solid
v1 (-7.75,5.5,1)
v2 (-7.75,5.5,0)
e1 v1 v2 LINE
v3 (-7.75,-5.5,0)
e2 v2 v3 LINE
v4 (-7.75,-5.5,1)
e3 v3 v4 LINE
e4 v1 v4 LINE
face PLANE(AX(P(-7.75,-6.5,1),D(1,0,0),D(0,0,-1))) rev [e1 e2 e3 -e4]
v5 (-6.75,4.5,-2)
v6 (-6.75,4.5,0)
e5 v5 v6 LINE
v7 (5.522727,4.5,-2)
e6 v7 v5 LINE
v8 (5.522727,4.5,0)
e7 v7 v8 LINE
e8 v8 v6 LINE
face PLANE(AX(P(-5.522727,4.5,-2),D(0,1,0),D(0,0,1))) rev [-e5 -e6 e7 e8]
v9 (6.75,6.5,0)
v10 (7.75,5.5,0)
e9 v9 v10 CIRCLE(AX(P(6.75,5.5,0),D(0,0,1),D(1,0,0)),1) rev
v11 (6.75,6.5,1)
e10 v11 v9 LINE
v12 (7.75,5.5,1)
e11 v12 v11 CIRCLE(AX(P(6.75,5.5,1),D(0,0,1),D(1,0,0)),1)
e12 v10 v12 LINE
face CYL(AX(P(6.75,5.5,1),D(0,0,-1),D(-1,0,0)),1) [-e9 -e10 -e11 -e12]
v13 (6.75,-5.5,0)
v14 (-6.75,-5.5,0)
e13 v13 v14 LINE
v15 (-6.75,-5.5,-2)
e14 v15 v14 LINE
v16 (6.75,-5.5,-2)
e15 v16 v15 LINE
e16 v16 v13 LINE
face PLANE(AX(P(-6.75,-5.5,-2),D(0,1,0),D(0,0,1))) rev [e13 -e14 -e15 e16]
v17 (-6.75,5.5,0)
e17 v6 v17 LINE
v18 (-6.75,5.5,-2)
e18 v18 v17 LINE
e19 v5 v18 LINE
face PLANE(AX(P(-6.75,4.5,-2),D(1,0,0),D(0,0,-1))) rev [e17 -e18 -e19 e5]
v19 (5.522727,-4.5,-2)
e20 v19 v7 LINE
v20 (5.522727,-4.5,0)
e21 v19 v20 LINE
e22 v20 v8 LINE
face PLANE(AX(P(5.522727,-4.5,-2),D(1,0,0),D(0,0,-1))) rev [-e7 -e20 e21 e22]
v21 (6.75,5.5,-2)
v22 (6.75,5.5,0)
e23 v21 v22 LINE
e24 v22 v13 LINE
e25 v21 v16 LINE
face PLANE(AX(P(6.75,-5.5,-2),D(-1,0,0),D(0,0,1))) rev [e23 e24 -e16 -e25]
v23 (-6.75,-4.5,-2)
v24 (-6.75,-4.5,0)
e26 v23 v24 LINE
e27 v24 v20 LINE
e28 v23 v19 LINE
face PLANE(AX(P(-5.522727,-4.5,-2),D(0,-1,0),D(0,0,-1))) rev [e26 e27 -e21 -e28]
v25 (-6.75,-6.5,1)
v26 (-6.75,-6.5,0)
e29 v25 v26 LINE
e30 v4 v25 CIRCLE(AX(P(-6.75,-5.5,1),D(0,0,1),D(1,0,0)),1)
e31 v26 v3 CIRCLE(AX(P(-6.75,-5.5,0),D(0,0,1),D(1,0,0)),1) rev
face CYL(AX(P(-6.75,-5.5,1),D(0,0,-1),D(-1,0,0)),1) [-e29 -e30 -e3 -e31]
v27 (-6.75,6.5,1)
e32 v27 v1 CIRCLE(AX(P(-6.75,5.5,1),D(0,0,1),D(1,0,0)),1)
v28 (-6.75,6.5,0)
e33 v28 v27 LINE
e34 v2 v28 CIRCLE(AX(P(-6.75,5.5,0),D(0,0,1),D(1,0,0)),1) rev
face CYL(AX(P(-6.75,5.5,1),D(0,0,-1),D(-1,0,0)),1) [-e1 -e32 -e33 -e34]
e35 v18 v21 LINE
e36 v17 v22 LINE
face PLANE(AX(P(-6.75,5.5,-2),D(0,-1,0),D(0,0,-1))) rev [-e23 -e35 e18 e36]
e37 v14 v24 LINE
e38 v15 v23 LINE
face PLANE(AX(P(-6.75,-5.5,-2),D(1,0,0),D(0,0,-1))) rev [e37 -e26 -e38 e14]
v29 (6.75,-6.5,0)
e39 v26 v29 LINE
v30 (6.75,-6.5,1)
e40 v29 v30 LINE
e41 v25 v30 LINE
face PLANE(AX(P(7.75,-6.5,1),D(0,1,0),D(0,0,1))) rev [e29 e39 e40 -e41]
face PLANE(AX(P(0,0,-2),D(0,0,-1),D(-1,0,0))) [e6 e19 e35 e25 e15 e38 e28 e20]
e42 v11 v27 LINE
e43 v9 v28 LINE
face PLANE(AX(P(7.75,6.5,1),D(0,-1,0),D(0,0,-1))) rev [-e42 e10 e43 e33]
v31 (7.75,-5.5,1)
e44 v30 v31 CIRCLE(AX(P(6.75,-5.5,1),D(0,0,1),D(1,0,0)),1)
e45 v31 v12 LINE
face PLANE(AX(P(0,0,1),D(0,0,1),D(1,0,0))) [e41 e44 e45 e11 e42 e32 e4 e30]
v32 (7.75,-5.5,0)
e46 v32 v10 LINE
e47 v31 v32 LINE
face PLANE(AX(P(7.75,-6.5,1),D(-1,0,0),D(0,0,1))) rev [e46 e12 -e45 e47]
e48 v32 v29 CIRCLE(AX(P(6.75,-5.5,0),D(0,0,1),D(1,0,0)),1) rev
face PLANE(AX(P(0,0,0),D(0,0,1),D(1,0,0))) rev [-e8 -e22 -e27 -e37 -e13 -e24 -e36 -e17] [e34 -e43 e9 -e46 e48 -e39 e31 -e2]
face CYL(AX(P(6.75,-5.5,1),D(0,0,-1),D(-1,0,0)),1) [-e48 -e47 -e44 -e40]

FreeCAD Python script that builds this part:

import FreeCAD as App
import Part
import Sketcher
from FreeCAD import Vector
Q = App.Units.Quantity


def edges_at(feature, points):
    """Names of the edges that pass closest to the given points."""
    edges = feature.Shape.Edges
    near = lambda p: min(range(len(edges)), key=lambda i: edges[i].distToShape(Part.Vertex(*p))[0])
    return sorted({f"Edge{near(p) + 1}" for p in points})

doc = App.newDocument("Part")
params = doc.addObject("Spreadsheet::Sheet", "Params")
for row, (alias, value) in enumerate([
    ("sketch1_height", "13 mm"),
    ("sketch1_width", "15.5 mm"),
    ("pad1_length", "1 mm"),
    ("sketch2_height", "9 mm"),
    ("sketch2_height2", "1 mm"),
    ("sketch2_width", "13.5 mm"),
    ("pad2_length", "2 mm"),
    ("fillet_radius", "1 mm"),
], start=1):
    params.set(f"A{row}", alias)
    params.set(f"B{row}", "=" + value)
    params.setAlias(f"B{row}", alias)

body = doc.addObject("PartDesign::Body", "Body")

# Sketch on XY plane
sketch1 = body.newObject("Sketcher::SketchObject", "Sketch")
sketch1.AttachmentSupport = (doc.getObject("XY_Plane"), [""])
sketch1.MapMode = "FlatFace"
sketch1.addGeometry(Part.LineSegment(Vector(-8, 6, 0), Vector(-8, -6, 0)), False)
sketch1.addGeometry(Part.LineSegment(Vector(-8, -6, 0), Vector(8, -6, 0)), False)
sketch1.addGeometry(Part.LineSegment(Vector(8, -6, 0), Vector(8, 6, 0)), False)
sketch1.addGeometry(Part.LineSegment(Vector(8, 6, 0), Vector(-8, 6, 0)), False)
sketch1.addConstraint(Sketcher.Constraint("Coincident", 0, 2, 1, 1))
sketch1.addConstraint(Sketcher.Constraint("Coincident", 1, 2, 2, 1))
sketch1.addConstraint(Sketcher.Constraint("Coincident", 2, 2, 3, 1))
sketch1.addConstraint(Sketcher.Constraint("Coincident", 3, 2, 0, 1))
sketch1.addConstraint(Sketcher.Constraint("Vertical", 0))
sketch1.addConstraint(Sketcher.Constraint("Horizontal", 1))
sketch1.addConstraint(Sketcher.Constraint("Vertical", 2))
sketch1.addConstraint(Sketcher.Constraint("Horizontal", 3))
sketch1.addConstraint(Sketcher.Constraint("Symmetric", 0, 2, 2, 2, -1, 1))
sketch1.addConstraint(Sketcher.Constraint("DistanceY", 0, 2, 0, 1, Q("13 mm")))
sketch1.addConstraint(Sketcher.Constraint("DistanceX", 1, 1, 1, 2, Q("15.5 mm")))
sketch1.setExpression("Constraints[9]", "Params.sketch1_height")
sketch1.setExpression("Constraints[10]", "Params.sketch1_width")
pad1 = body.newObject("PartDesign::Pad", "Pad")
pad1.Profile = sketch1
pad1.setExpression("Length", "Params.pad1_length")

# Sketch on XY plane
sketch2 = body.newObject("Sketcher::SketchObject", "Sketch001")
sketch2.AttachmentSupport = (doc.getObject("XY_Plane"), [""])
sketch2.MapMode = "FlatFace"
sketch2.addGeometry(Part.LineSegment(Vector(-6.8, -4.5, 0), Vector(5.5, -4.5, 0)), False)
sketch2.addGeometry(Part.LineSegment(Vector(5.5, -4.5, 0), Vector(5.5, 4.5, 0)), False)
sketch2.addGeometry(Part.LineSegment(Vector(5.5, 4.5, 0), Vector(-6.8, 4.5, 0)), False)
sketch2.addGeometry(Part.LineSegment(Vector(-6.8, 4.5, 0), Vector(-6.8, 5.5, 0)), False)
sketch2.addGeometry(Part.LineSegment(Vector(-6.8, 5.5, 0), Vector(6.8, 5.5, 0)), False)
sketch2.addGeometry(Part.LineSegment(Vector(6.8, 5.5, 0), Vector(6.8, -5.5, 0)), False)
sketch2.addGeometry(Part.LineSegment(Vector(6.8, -5.5, 0), Vector(-6.8, -5.5, 0)), False)
sketch2.addGeometry(Part.LineSegment(Vector(-6.8, -5.5, 0), Vector(-6.8, -4.5, 0)), False)
sketch2.addConstraint(Sketcher.Constraint("Coincident", 0, 2, 1, 1))
sketch2.addConstraint(Sketcher.Constraint("Coincident", 1, 2, 2, 1))
sketch2.addConstraint(Sketcher.Constraint("Coincident", 2, 2, 3, 1))
sketch2.addConstraint(Sketcher.Constraint("Coincident", 3, 2, 4, 1))
sketch2.addConstraint(Sketcher.Constraint("Coincident", 4, 2, 5, 1))
sketch2.addConstraint(Sketcher.Constraint("Coincident", 5, 2, 6, 1))
sketch2.addConstraint(Sketcher.Constraint("Coincident", 6, 2, 7, 1))
sketch2.addConstraint(Sketcher.Constraint("Coincident", 7, 2, 0, 1))
sketch2.addConstraint(Sketcher.Constraint("Horizontal", 0))
sketch2.addConstraint(Sketcher.Constraint("Vertical", 1))
sketch2.addConstraint(Sketcher.Constraint("Horizontal", 2))
sketch2.addConstraint(Sketcher.Constraint("Vertical", 3))
sketch2.addConstraint(Sketcher.Constraint("Horizontal", 4))
sketch2.addConstraint(Sketcher.Constraint("Vertical", 5))
sketch2.addConstraint(Sketcher.Constraint("Horizontal", 6))
sketch2.addConstraint(Sketcher.Constraint("Vertical", 7))
sketch2.addConstraint(Sketcher.Constraint("Symmetric", 3, 2, 5, 2, -1, 1))
sketch2.addConstraint(Sketcher.Constraint("Symmetric", 2, 2, 7, 2, -1))
sketch2.addConstraint(Sketcher.Constraint("DistanceY", 1, 1, 1, 2, Q("9 mm")))
sketch2.addConstraint(Sketcher.Constraint("DistanceY", 3, 1, 3, 2, Q("1 mm")))
sketch2.addConstraint(Sketcher.Constraint("DistanceX", 4, 1, 4, 2, Q("13.5 mm")))
sketch2.addConstraint(Sketcher.Constraint("DistanceX", 0, 1, 0, 2, Q("12.272727 mm")))
sketch2.setExpression("Constraints[18]", "Params.sketch2_height")
sketch2.setExpression("Constraints[19]", "Params.sketch2_height2")
sketch2.setExpression("Constraints[20]", "Params.sketch2_width")
pad2 = body.newObject("PartDesign::Pad", "Pad001")
pad2.Profile = sketch2
pad2.setExpression("Length", "Params.pad2_length")
pad2.Reversed = True
doc.recompute()

fillet = body.newObject("PartDesign::Fillet", "Fillet")
fillet.Base = (pad2, edges_at(pad2, [
    (-7.75, 6.5, 0.5),
    (7.75, 6.5, 0.5),
    (7.75, -6.5, 0.5),
    (-7.75, -6.5, 0.5),
]))
fillet.setExpression("Radius", "Params.fillet_radius")

doc.recompute()
